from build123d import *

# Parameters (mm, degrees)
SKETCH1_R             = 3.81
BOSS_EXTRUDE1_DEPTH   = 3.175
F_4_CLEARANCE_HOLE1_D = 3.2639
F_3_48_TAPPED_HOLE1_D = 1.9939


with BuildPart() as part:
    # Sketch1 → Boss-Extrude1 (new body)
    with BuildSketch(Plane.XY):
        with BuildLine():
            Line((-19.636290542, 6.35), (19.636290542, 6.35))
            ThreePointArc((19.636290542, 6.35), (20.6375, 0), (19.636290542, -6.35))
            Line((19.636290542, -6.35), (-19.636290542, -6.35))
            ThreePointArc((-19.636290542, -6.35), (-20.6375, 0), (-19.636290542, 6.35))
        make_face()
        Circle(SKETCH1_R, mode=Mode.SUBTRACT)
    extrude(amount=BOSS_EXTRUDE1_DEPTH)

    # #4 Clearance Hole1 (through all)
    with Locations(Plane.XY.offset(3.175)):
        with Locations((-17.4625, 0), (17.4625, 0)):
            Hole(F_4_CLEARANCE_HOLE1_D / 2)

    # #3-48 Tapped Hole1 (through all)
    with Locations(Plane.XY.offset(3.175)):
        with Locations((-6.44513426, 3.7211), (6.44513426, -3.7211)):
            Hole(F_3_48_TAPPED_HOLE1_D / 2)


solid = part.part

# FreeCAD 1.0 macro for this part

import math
import FreeCAD as App
import Part
import Sketcher

V = App.Vector
Q = App.Units.Quantity

doc = App.newDocument("Part")
body = doc.addObject("PartDesign::Body", "Body")

# Sketch on XY plane
sketch1 = doc.addObject("Sketcher::SketchObject", "Sketch")
body.addObject(sketch1)
sketch1.AttachmentSupport = (doc.XY_Plane, [""])
sketch1.MapMode = "FlatFace"
sketch1.addGeometry([
    Part.LineSegment(V(19.6, 6.3, 0), V(-19.6, 6.3, 0)),  # 0
    Part.ArcOfCircle(Part.Circle(V(0, 0, 0), V(0, 0, 1), 20.6), math.radians(162), math.radians(198)),  # 1
    Part.LineSegment(V(-19.6, -6.3, 0), V(19.6, -6.3, 0)),  # 2
    Part.ArcOfCircle(Part.Circle(V(0, 0, 0), V(0, 0, 1), 20.6), math.radians(-18), math.radians(18)),  # 3
    Part.Circle(V(0, 0, 0), V(0, 0, 1), 3.8),  # 4
], False)
sketch1.addConstraint([
    Sketcher.Constraint("Coincident", 0, 2, 1, 1),
    Sketcher.Constraint("Coincident", 1, 2, 2, 1),
    Sketcher.Constraint("Coincident", 2, 2, 3, 1),
    Sketcher.Constraint("Coincident", 3, 2, 0, 1),
    Sketcher.Constraint("Horizontal", 0),
    Sketcher.Constraint("Horizontal", 2),
    Sketcher.Constraint("Coincident", 1, 3, -1, 1),
    Sketcher.Constraint("Coincident", 3, 3, -1, 1),
    Sketcher.Constraint("Coincident", 4, 3, -1, 1),
    Sketcher.Constraint("Equal", 1, 3),
    Sketcher.Constraint("Vertical", 0, 2, 1, 2),
    Sketcher.Constraint("Diameter", 4, Q("0.3 in")),
    Sketcher.Constraint("Radius", 1, Q("0.8125 in")),
    Sketcher.Constraint("DistanceY", 1, 2, 0, 2, Q("0.5 in")),
])
pad1 = doc.addObject("PartDesign::Pad", "Pad")
body.addObject(pad1)
pad1.Profile = sketch1
pad1.Length = Q("0.125 in")

# Sketch on XY plane
sketch2 = doc.addObject("Sketcher::SketchObject", "Sketch001")
body.addObject(sketch2)
sketch2.AttachmentSupport = (doc.XY_Plane, [""])
sketch2.MapMode = "FlatFace"
sketch2.AttachmentOffset = App.Placement(V(0, 0, 0.125 * 25.4), App.Rotation())
sketch2.addGeometry([
    Part.Circle(V(-17.5, 0, 0), V(0, 0, 1), 1.6),
    Part.Circle(V(17.5, 0, 0), V(0, 0, 1), 1.6),
], False)
sketch2.addConstraint([
    Sketcher.Constraint("Equal", 0, 1),
    Sketcher.Constraint("Symmetric", 0, 3, 1, 3, -1, 1),
    Sketcher.Constraint("PointOnObject", 0, 3, -1),
    Sketcher.Constraint("Diameter", 0, Q("0.1285 in")),
    Sketcher.Constraint("DistanceX", 0, 3, -1, 1, Q("0.6875 in")),
])
doc.recompute()
hole = doc.addObject("PartDesign::Hole", "Hole")
body.addObject(hole)
hole.Profile = sketch2
hole.ThreadType = "None"
hole.Diameter = Q("0.1285 in")
hole.DepthType = "ThroughAll"

# Sketch on XY plane
sketch3 = doc.addObject("Sketcher::SketchObject", "Sketch002")
body.addObject(sketch3)
sketch3.AttachmentSupport = (doc.XY_Plane, [""])
sketch3.MapMode = "FlatFace"
sketch3.AttachmentOffset = App.Placement(V(0, 0, 0.125 * 25.4), App.Rotation())
sketch3.addGeometry([
    Part.Circle(V(-6.4, 3.7, 0), V(0, 0, 1), 1),
    Part.Circle(V(6.4, -3.7, 0), V(0, 0, 1), 1),
], False)
sketch3.addConstraint([
    Sketcher.Constraint("Equal", 0, 1),
    Sketcher.Constraint("Symmetric", 0, 3, 1, 3, -1, 1),
    Sketcher.Constraint("Diameter", 0, Q("0.0785 in")),
    Sketcher.Constraint("DistanceY", 1, 3, 0, 3, Q("0.293 in")),
    Sketcher.Constraint("DistanceX", 0, 3, 1, 3, Q("12.890269 mm")),
])
doc.recompute()
hole2 = doc.addObject("PartDesign::Hole", "Hole001")
body.addObject(hole2)
hole2.Profile = sketch3
hole2.ThreadType = "None"
hole2.Diameter = Q("0.0785 in")
hole2.DepthType = "ThroughAll"

doc.recompute()
